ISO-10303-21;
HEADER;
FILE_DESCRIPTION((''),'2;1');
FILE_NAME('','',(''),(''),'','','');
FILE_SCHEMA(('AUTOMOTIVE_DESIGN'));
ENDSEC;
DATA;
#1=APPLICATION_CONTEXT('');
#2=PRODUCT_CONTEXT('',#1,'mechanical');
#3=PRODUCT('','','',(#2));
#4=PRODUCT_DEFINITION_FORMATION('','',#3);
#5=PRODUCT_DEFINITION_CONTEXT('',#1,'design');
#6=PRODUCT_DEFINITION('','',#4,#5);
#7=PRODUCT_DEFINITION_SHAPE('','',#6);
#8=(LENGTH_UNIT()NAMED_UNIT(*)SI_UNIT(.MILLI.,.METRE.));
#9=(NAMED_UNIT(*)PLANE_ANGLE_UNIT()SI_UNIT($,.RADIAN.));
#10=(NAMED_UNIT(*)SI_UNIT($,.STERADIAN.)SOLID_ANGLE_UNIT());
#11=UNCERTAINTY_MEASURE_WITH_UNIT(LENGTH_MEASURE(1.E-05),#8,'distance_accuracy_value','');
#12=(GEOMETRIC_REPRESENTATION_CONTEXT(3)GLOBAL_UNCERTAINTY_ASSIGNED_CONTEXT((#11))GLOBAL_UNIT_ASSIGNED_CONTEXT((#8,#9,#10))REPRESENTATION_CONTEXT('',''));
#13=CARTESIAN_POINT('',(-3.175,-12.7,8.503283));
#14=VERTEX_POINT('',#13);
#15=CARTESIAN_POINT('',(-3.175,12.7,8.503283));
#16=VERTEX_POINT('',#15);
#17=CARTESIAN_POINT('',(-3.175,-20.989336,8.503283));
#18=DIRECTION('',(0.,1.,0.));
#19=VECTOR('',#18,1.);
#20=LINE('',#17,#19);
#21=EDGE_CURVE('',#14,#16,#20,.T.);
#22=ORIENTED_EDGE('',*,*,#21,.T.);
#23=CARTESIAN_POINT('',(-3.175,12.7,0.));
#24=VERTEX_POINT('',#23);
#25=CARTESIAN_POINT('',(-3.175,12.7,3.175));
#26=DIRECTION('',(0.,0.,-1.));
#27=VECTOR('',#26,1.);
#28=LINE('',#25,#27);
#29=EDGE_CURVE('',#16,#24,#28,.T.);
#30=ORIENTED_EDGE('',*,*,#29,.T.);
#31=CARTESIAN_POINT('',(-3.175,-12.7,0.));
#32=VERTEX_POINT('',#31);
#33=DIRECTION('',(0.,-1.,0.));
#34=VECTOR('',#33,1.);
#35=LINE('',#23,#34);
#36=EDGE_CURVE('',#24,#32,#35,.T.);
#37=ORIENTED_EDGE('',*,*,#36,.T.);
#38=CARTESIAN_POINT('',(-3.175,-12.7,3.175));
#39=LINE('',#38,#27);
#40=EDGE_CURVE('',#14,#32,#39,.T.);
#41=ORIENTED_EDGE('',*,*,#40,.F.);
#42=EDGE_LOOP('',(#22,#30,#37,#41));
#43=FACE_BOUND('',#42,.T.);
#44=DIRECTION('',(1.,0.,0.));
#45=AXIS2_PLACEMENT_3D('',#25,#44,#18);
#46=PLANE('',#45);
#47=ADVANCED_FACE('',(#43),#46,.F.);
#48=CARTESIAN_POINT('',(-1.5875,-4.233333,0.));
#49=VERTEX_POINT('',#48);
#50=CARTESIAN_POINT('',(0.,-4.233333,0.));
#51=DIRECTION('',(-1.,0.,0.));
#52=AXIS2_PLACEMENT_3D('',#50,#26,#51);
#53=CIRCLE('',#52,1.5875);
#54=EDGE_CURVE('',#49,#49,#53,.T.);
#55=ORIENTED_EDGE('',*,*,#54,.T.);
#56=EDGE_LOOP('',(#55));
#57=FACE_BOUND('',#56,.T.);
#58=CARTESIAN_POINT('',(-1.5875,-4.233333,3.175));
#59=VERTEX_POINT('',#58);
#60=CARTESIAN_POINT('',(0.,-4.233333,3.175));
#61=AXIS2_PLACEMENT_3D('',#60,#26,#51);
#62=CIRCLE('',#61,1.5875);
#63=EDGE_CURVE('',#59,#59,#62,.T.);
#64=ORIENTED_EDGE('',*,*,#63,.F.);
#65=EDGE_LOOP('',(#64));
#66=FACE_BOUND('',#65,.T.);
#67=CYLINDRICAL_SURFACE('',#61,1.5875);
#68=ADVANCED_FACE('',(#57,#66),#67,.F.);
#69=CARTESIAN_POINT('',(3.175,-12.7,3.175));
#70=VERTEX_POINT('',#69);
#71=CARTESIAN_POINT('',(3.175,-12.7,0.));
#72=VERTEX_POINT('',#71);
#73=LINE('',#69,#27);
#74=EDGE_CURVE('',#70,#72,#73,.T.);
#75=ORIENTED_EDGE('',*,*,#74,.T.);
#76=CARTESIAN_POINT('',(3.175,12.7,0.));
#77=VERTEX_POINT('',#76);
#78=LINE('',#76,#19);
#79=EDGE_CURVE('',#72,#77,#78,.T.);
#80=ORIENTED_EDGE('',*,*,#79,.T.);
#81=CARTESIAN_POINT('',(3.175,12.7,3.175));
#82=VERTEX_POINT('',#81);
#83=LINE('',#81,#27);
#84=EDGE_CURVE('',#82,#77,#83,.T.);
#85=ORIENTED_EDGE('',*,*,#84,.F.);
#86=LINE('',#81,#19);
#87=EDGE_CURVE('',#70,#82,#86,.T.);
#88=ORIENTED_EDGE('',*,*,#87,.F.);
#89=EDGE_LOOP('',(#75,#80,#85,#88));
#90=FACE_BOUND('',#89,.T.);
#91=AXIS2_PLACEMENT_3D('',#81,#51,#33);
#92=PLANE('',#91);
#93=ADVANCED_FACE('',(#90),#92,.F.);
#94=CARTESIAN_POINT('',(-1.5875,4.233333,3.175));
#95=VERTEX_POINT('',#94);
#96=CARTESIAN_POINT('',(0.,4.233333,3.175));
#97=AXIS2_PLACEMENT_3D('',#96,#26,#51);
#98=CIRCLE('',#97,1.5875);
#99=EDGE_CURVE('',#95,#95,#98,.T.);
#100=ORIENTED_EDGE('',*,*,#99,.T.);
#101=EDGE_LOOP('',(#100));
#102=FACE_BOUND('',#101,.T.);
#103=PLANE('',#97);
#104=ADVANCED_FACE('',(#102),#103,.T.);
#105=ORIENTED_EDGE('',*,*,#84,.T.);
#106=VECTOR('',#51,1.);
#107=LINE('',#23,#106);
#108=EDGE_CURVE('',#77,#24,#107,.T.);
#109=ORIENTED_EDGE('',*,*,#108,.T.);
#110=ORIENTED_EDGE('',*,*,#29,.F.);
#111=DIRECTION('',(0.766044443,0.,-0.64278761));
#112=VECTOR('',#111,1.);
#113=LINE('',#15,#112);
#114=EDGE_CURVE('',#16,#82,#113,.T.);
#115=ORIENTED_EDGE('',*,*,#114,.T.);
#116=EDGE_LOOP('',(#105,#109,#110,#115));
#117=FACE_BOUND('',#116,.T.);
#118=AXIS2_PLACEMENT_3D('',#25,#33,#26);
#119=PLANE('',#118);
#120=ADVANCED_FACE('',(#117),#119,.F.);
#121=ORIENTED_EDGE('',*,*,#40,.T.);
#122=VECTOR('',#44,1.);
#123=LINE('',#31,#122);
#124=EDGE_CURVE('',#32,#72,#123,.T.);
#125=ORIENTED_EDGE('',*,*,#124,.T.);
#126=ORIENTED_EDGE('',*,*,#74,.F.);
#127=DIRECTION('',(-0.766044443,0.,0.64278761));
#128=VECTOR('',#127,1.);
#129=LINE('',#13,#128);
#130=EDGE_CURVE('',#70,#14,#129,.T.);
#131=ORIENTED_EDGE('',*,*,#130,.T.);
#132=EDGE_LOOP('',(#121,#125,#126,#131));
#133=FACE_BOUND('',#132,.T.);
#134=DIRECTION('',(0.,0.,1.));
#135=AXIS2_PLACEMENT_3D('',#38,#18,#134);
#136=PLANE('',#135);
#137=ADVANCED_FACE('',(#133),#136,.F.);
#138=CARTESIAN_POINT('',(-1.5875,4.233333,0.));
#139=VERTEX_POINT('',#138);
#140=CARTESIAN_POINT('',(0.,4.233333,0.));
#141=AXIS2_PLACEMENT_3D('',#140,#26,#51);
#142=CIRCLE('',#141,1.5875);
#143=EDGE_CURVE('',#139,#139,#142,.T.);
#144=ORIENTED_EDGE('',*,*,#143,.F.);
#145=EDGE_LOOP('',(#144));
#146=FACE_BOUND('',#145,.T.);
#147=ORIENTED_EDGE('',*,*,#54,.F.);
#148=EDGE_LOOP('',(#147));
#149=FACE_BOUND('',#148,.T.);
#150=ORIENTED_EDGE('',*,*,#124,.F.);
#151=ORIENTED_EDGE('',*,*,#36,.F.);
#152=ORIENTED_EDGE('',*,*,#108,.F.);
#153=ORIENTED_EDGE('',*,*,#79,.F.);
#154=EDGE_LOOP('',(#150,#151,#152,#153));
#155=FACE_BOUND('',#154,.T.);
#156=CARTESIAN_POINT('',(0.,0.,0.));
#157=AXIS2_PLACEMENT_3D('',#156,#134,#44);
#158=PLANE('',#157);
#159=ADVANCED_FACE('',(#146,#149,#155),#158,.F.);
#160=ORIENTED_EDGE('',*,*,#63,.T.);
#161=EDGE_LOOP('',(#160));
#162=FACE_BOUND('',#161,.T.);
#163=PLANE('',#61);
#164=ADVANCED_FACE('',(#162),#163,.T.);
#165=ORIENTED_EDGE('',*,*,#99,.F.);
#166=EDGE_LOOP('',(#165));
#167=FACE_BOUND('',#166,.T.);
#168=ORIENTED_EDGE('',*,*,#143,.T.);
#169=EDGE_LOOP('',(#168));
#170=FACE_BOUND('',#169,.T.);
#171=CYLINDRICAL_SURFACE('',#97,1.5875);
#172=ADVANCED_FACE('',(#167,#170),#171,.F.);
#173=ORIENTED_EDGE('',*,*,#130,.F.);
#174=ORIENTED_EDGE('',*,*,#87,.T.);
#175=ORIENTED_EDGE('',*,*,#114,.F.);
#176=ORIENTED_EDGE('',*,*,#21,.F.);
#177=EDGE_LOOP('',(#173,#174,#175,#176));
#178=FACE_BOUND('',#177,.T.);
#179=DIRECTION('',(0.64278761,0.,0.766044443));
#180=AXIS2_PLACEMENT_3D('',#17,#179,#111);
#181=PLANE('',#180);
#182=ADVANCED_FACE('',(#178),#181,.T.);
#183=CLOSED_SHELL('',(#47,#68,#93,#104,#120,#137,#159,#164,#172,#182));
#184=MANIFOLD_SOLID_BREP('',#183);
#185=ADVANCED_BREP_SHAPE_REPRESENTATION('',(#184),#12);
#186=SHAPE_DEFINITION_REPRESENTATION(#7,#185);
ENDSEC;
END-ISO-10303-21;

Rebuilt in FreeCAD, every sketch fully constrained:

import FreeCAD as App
import Part
import Sketcher
Q = App.Units.Quantity


def add_polygon(sketch, points):
    """Adds a closed chain of lines whose ends are joined by coincident constraints."""
    first, n = sketch.GeometryCount, len(points)
    for a, b in zip(points, points[1:] + points[:1]):
        sketch.addGeometry(Part.LineSegment(App.Vector(*a, 0), App.Vector(*b, 0)), False)
    for i in range(n):
        sketch.addConstraint(Sketcher.Constraint("Coincident", first + i, 2, first + (i + 1) % n, 1))

doc = App.newDocument("Part")
body = doc.addObject("PartDesign::Body", "Body")

sketch1 = body.newObject("Sketcher::SketchObject", "Sketch")
sketch1.AttachmentSupport = (doc.getObject("XY_Plane"), [""])
sketch1.MapMode = "FlatFace"
add_polygon(sketch1, [(-3, 13), (-3, -13), (3, -13), (3, 13)])
sketch1.addConstraint(Sketcher.Constraint("Vertical", 0))
sketch1.addConstraint(Sketcher.Constraint("Horizontal", 1))
sketch1.addConstraint(Sketcher.Constraint("Vertical", 2))
sketch1.addConstraint(Sketcher.Constraint("Horizontal", 3))
sketch1.addConstraint(Sketcher.Constraint("Symmetric", 0, 2, 2, 2, -1, 1))
sketch1.addConstraint(Sketcher.Constraint("DistanceY", 0, 2, 0, 1, Q("1 in")))
sketch1.addConstraint(Sketcher.Constraint("DistanceX", 1, 1, 1, 2, Q("0.25 in")))
pad1 = body.newObject("PartDesign::Pad", "Pad")
pad1.Profile = sketch1
pad1.Length = Q("0.125 in")

sketch2 = body.newObject("Sketcher::SketchObject", "Sketch001")
sketch2.AttachmentSupport = (doc.getObject("XZ_Plane"), [""])
sketch2.MapMode = "FlatFace"
sketch2.AttachmentOffset = App.Placement(App.Vector(0, 0, -0.5 * 25.4), App.Rotation())
add_polygon(sketch2, [(-3, 3), (-3, 9), (3, 3)])
sketch2.addConstraint(Sketcher.Constraint("Vertical", 0))
sketch2.addConstraint(Sketcher.Constraint("Horizontal", 2))
sketch2.addConstraint(Sketcher.Constraint("Angle", 1, Q("-40 deg")))
sketch2.addConstraint(Sketcher.Constraint("DistanceX", 2, 2, 2, 1, Q("0.25 in")))
sketch2.addConstraint(Sketcher.Constraint("DistanceX", 0, 2, -1, 1, Q("0.125 in")))
sketch2.addConstraint(Sketcher.Constraint("DistanceY", -1, 1, 1, 2, Q("0.125 in")))
pad2 = body.newObject("PartDesign::Pad", "Pad001")
pad2.Profile = sketch2
pad2.Length = Q("1 in")

sketch3 = body.newObject("Sketcher::SketchObject", "Sketch002")
sketch3.AttachmentSupport = (doc.getObject("XY_Plane"), [""])
sketch3.MapMode = "FlatFace"
sketch3.addGeometry(Part.Circle(App.Vector(0, 4.2, 0), App.Vector(0, 0, 1), 1.6), False)
sketch3.addGeometry(Part.Circle(App.Vector(0, -4.2, 0), App.Vector(0, 0, 1), 1.6), False)
sketch3.addConstraint(Sketcher.Constraint("Equal", 0, 1))
sketch3.addConstraint(Sketcher.Constraint("Symmetric", 0, 3, 1, 3, -1, 1))
sketch3.addConstraint(Sketcher.Constraint("PointOnObject", 0, 3, -2))
sketch3.addConstraint(Sketcher.Constraint("Diameter", 0, Q("0.125 in")))
sketch3.addConstraint(Sketcher.Constraint("DistanceY", -1, 1, 0, 3, 4.233333))
pocket1 = body.newObject("PartDesign::Pocket", "Pocket")
pocket1.Profile = sketch3
pocket1.Length = Q("0.125 in")
pocket1.Reversed = True

doc.recompute()
